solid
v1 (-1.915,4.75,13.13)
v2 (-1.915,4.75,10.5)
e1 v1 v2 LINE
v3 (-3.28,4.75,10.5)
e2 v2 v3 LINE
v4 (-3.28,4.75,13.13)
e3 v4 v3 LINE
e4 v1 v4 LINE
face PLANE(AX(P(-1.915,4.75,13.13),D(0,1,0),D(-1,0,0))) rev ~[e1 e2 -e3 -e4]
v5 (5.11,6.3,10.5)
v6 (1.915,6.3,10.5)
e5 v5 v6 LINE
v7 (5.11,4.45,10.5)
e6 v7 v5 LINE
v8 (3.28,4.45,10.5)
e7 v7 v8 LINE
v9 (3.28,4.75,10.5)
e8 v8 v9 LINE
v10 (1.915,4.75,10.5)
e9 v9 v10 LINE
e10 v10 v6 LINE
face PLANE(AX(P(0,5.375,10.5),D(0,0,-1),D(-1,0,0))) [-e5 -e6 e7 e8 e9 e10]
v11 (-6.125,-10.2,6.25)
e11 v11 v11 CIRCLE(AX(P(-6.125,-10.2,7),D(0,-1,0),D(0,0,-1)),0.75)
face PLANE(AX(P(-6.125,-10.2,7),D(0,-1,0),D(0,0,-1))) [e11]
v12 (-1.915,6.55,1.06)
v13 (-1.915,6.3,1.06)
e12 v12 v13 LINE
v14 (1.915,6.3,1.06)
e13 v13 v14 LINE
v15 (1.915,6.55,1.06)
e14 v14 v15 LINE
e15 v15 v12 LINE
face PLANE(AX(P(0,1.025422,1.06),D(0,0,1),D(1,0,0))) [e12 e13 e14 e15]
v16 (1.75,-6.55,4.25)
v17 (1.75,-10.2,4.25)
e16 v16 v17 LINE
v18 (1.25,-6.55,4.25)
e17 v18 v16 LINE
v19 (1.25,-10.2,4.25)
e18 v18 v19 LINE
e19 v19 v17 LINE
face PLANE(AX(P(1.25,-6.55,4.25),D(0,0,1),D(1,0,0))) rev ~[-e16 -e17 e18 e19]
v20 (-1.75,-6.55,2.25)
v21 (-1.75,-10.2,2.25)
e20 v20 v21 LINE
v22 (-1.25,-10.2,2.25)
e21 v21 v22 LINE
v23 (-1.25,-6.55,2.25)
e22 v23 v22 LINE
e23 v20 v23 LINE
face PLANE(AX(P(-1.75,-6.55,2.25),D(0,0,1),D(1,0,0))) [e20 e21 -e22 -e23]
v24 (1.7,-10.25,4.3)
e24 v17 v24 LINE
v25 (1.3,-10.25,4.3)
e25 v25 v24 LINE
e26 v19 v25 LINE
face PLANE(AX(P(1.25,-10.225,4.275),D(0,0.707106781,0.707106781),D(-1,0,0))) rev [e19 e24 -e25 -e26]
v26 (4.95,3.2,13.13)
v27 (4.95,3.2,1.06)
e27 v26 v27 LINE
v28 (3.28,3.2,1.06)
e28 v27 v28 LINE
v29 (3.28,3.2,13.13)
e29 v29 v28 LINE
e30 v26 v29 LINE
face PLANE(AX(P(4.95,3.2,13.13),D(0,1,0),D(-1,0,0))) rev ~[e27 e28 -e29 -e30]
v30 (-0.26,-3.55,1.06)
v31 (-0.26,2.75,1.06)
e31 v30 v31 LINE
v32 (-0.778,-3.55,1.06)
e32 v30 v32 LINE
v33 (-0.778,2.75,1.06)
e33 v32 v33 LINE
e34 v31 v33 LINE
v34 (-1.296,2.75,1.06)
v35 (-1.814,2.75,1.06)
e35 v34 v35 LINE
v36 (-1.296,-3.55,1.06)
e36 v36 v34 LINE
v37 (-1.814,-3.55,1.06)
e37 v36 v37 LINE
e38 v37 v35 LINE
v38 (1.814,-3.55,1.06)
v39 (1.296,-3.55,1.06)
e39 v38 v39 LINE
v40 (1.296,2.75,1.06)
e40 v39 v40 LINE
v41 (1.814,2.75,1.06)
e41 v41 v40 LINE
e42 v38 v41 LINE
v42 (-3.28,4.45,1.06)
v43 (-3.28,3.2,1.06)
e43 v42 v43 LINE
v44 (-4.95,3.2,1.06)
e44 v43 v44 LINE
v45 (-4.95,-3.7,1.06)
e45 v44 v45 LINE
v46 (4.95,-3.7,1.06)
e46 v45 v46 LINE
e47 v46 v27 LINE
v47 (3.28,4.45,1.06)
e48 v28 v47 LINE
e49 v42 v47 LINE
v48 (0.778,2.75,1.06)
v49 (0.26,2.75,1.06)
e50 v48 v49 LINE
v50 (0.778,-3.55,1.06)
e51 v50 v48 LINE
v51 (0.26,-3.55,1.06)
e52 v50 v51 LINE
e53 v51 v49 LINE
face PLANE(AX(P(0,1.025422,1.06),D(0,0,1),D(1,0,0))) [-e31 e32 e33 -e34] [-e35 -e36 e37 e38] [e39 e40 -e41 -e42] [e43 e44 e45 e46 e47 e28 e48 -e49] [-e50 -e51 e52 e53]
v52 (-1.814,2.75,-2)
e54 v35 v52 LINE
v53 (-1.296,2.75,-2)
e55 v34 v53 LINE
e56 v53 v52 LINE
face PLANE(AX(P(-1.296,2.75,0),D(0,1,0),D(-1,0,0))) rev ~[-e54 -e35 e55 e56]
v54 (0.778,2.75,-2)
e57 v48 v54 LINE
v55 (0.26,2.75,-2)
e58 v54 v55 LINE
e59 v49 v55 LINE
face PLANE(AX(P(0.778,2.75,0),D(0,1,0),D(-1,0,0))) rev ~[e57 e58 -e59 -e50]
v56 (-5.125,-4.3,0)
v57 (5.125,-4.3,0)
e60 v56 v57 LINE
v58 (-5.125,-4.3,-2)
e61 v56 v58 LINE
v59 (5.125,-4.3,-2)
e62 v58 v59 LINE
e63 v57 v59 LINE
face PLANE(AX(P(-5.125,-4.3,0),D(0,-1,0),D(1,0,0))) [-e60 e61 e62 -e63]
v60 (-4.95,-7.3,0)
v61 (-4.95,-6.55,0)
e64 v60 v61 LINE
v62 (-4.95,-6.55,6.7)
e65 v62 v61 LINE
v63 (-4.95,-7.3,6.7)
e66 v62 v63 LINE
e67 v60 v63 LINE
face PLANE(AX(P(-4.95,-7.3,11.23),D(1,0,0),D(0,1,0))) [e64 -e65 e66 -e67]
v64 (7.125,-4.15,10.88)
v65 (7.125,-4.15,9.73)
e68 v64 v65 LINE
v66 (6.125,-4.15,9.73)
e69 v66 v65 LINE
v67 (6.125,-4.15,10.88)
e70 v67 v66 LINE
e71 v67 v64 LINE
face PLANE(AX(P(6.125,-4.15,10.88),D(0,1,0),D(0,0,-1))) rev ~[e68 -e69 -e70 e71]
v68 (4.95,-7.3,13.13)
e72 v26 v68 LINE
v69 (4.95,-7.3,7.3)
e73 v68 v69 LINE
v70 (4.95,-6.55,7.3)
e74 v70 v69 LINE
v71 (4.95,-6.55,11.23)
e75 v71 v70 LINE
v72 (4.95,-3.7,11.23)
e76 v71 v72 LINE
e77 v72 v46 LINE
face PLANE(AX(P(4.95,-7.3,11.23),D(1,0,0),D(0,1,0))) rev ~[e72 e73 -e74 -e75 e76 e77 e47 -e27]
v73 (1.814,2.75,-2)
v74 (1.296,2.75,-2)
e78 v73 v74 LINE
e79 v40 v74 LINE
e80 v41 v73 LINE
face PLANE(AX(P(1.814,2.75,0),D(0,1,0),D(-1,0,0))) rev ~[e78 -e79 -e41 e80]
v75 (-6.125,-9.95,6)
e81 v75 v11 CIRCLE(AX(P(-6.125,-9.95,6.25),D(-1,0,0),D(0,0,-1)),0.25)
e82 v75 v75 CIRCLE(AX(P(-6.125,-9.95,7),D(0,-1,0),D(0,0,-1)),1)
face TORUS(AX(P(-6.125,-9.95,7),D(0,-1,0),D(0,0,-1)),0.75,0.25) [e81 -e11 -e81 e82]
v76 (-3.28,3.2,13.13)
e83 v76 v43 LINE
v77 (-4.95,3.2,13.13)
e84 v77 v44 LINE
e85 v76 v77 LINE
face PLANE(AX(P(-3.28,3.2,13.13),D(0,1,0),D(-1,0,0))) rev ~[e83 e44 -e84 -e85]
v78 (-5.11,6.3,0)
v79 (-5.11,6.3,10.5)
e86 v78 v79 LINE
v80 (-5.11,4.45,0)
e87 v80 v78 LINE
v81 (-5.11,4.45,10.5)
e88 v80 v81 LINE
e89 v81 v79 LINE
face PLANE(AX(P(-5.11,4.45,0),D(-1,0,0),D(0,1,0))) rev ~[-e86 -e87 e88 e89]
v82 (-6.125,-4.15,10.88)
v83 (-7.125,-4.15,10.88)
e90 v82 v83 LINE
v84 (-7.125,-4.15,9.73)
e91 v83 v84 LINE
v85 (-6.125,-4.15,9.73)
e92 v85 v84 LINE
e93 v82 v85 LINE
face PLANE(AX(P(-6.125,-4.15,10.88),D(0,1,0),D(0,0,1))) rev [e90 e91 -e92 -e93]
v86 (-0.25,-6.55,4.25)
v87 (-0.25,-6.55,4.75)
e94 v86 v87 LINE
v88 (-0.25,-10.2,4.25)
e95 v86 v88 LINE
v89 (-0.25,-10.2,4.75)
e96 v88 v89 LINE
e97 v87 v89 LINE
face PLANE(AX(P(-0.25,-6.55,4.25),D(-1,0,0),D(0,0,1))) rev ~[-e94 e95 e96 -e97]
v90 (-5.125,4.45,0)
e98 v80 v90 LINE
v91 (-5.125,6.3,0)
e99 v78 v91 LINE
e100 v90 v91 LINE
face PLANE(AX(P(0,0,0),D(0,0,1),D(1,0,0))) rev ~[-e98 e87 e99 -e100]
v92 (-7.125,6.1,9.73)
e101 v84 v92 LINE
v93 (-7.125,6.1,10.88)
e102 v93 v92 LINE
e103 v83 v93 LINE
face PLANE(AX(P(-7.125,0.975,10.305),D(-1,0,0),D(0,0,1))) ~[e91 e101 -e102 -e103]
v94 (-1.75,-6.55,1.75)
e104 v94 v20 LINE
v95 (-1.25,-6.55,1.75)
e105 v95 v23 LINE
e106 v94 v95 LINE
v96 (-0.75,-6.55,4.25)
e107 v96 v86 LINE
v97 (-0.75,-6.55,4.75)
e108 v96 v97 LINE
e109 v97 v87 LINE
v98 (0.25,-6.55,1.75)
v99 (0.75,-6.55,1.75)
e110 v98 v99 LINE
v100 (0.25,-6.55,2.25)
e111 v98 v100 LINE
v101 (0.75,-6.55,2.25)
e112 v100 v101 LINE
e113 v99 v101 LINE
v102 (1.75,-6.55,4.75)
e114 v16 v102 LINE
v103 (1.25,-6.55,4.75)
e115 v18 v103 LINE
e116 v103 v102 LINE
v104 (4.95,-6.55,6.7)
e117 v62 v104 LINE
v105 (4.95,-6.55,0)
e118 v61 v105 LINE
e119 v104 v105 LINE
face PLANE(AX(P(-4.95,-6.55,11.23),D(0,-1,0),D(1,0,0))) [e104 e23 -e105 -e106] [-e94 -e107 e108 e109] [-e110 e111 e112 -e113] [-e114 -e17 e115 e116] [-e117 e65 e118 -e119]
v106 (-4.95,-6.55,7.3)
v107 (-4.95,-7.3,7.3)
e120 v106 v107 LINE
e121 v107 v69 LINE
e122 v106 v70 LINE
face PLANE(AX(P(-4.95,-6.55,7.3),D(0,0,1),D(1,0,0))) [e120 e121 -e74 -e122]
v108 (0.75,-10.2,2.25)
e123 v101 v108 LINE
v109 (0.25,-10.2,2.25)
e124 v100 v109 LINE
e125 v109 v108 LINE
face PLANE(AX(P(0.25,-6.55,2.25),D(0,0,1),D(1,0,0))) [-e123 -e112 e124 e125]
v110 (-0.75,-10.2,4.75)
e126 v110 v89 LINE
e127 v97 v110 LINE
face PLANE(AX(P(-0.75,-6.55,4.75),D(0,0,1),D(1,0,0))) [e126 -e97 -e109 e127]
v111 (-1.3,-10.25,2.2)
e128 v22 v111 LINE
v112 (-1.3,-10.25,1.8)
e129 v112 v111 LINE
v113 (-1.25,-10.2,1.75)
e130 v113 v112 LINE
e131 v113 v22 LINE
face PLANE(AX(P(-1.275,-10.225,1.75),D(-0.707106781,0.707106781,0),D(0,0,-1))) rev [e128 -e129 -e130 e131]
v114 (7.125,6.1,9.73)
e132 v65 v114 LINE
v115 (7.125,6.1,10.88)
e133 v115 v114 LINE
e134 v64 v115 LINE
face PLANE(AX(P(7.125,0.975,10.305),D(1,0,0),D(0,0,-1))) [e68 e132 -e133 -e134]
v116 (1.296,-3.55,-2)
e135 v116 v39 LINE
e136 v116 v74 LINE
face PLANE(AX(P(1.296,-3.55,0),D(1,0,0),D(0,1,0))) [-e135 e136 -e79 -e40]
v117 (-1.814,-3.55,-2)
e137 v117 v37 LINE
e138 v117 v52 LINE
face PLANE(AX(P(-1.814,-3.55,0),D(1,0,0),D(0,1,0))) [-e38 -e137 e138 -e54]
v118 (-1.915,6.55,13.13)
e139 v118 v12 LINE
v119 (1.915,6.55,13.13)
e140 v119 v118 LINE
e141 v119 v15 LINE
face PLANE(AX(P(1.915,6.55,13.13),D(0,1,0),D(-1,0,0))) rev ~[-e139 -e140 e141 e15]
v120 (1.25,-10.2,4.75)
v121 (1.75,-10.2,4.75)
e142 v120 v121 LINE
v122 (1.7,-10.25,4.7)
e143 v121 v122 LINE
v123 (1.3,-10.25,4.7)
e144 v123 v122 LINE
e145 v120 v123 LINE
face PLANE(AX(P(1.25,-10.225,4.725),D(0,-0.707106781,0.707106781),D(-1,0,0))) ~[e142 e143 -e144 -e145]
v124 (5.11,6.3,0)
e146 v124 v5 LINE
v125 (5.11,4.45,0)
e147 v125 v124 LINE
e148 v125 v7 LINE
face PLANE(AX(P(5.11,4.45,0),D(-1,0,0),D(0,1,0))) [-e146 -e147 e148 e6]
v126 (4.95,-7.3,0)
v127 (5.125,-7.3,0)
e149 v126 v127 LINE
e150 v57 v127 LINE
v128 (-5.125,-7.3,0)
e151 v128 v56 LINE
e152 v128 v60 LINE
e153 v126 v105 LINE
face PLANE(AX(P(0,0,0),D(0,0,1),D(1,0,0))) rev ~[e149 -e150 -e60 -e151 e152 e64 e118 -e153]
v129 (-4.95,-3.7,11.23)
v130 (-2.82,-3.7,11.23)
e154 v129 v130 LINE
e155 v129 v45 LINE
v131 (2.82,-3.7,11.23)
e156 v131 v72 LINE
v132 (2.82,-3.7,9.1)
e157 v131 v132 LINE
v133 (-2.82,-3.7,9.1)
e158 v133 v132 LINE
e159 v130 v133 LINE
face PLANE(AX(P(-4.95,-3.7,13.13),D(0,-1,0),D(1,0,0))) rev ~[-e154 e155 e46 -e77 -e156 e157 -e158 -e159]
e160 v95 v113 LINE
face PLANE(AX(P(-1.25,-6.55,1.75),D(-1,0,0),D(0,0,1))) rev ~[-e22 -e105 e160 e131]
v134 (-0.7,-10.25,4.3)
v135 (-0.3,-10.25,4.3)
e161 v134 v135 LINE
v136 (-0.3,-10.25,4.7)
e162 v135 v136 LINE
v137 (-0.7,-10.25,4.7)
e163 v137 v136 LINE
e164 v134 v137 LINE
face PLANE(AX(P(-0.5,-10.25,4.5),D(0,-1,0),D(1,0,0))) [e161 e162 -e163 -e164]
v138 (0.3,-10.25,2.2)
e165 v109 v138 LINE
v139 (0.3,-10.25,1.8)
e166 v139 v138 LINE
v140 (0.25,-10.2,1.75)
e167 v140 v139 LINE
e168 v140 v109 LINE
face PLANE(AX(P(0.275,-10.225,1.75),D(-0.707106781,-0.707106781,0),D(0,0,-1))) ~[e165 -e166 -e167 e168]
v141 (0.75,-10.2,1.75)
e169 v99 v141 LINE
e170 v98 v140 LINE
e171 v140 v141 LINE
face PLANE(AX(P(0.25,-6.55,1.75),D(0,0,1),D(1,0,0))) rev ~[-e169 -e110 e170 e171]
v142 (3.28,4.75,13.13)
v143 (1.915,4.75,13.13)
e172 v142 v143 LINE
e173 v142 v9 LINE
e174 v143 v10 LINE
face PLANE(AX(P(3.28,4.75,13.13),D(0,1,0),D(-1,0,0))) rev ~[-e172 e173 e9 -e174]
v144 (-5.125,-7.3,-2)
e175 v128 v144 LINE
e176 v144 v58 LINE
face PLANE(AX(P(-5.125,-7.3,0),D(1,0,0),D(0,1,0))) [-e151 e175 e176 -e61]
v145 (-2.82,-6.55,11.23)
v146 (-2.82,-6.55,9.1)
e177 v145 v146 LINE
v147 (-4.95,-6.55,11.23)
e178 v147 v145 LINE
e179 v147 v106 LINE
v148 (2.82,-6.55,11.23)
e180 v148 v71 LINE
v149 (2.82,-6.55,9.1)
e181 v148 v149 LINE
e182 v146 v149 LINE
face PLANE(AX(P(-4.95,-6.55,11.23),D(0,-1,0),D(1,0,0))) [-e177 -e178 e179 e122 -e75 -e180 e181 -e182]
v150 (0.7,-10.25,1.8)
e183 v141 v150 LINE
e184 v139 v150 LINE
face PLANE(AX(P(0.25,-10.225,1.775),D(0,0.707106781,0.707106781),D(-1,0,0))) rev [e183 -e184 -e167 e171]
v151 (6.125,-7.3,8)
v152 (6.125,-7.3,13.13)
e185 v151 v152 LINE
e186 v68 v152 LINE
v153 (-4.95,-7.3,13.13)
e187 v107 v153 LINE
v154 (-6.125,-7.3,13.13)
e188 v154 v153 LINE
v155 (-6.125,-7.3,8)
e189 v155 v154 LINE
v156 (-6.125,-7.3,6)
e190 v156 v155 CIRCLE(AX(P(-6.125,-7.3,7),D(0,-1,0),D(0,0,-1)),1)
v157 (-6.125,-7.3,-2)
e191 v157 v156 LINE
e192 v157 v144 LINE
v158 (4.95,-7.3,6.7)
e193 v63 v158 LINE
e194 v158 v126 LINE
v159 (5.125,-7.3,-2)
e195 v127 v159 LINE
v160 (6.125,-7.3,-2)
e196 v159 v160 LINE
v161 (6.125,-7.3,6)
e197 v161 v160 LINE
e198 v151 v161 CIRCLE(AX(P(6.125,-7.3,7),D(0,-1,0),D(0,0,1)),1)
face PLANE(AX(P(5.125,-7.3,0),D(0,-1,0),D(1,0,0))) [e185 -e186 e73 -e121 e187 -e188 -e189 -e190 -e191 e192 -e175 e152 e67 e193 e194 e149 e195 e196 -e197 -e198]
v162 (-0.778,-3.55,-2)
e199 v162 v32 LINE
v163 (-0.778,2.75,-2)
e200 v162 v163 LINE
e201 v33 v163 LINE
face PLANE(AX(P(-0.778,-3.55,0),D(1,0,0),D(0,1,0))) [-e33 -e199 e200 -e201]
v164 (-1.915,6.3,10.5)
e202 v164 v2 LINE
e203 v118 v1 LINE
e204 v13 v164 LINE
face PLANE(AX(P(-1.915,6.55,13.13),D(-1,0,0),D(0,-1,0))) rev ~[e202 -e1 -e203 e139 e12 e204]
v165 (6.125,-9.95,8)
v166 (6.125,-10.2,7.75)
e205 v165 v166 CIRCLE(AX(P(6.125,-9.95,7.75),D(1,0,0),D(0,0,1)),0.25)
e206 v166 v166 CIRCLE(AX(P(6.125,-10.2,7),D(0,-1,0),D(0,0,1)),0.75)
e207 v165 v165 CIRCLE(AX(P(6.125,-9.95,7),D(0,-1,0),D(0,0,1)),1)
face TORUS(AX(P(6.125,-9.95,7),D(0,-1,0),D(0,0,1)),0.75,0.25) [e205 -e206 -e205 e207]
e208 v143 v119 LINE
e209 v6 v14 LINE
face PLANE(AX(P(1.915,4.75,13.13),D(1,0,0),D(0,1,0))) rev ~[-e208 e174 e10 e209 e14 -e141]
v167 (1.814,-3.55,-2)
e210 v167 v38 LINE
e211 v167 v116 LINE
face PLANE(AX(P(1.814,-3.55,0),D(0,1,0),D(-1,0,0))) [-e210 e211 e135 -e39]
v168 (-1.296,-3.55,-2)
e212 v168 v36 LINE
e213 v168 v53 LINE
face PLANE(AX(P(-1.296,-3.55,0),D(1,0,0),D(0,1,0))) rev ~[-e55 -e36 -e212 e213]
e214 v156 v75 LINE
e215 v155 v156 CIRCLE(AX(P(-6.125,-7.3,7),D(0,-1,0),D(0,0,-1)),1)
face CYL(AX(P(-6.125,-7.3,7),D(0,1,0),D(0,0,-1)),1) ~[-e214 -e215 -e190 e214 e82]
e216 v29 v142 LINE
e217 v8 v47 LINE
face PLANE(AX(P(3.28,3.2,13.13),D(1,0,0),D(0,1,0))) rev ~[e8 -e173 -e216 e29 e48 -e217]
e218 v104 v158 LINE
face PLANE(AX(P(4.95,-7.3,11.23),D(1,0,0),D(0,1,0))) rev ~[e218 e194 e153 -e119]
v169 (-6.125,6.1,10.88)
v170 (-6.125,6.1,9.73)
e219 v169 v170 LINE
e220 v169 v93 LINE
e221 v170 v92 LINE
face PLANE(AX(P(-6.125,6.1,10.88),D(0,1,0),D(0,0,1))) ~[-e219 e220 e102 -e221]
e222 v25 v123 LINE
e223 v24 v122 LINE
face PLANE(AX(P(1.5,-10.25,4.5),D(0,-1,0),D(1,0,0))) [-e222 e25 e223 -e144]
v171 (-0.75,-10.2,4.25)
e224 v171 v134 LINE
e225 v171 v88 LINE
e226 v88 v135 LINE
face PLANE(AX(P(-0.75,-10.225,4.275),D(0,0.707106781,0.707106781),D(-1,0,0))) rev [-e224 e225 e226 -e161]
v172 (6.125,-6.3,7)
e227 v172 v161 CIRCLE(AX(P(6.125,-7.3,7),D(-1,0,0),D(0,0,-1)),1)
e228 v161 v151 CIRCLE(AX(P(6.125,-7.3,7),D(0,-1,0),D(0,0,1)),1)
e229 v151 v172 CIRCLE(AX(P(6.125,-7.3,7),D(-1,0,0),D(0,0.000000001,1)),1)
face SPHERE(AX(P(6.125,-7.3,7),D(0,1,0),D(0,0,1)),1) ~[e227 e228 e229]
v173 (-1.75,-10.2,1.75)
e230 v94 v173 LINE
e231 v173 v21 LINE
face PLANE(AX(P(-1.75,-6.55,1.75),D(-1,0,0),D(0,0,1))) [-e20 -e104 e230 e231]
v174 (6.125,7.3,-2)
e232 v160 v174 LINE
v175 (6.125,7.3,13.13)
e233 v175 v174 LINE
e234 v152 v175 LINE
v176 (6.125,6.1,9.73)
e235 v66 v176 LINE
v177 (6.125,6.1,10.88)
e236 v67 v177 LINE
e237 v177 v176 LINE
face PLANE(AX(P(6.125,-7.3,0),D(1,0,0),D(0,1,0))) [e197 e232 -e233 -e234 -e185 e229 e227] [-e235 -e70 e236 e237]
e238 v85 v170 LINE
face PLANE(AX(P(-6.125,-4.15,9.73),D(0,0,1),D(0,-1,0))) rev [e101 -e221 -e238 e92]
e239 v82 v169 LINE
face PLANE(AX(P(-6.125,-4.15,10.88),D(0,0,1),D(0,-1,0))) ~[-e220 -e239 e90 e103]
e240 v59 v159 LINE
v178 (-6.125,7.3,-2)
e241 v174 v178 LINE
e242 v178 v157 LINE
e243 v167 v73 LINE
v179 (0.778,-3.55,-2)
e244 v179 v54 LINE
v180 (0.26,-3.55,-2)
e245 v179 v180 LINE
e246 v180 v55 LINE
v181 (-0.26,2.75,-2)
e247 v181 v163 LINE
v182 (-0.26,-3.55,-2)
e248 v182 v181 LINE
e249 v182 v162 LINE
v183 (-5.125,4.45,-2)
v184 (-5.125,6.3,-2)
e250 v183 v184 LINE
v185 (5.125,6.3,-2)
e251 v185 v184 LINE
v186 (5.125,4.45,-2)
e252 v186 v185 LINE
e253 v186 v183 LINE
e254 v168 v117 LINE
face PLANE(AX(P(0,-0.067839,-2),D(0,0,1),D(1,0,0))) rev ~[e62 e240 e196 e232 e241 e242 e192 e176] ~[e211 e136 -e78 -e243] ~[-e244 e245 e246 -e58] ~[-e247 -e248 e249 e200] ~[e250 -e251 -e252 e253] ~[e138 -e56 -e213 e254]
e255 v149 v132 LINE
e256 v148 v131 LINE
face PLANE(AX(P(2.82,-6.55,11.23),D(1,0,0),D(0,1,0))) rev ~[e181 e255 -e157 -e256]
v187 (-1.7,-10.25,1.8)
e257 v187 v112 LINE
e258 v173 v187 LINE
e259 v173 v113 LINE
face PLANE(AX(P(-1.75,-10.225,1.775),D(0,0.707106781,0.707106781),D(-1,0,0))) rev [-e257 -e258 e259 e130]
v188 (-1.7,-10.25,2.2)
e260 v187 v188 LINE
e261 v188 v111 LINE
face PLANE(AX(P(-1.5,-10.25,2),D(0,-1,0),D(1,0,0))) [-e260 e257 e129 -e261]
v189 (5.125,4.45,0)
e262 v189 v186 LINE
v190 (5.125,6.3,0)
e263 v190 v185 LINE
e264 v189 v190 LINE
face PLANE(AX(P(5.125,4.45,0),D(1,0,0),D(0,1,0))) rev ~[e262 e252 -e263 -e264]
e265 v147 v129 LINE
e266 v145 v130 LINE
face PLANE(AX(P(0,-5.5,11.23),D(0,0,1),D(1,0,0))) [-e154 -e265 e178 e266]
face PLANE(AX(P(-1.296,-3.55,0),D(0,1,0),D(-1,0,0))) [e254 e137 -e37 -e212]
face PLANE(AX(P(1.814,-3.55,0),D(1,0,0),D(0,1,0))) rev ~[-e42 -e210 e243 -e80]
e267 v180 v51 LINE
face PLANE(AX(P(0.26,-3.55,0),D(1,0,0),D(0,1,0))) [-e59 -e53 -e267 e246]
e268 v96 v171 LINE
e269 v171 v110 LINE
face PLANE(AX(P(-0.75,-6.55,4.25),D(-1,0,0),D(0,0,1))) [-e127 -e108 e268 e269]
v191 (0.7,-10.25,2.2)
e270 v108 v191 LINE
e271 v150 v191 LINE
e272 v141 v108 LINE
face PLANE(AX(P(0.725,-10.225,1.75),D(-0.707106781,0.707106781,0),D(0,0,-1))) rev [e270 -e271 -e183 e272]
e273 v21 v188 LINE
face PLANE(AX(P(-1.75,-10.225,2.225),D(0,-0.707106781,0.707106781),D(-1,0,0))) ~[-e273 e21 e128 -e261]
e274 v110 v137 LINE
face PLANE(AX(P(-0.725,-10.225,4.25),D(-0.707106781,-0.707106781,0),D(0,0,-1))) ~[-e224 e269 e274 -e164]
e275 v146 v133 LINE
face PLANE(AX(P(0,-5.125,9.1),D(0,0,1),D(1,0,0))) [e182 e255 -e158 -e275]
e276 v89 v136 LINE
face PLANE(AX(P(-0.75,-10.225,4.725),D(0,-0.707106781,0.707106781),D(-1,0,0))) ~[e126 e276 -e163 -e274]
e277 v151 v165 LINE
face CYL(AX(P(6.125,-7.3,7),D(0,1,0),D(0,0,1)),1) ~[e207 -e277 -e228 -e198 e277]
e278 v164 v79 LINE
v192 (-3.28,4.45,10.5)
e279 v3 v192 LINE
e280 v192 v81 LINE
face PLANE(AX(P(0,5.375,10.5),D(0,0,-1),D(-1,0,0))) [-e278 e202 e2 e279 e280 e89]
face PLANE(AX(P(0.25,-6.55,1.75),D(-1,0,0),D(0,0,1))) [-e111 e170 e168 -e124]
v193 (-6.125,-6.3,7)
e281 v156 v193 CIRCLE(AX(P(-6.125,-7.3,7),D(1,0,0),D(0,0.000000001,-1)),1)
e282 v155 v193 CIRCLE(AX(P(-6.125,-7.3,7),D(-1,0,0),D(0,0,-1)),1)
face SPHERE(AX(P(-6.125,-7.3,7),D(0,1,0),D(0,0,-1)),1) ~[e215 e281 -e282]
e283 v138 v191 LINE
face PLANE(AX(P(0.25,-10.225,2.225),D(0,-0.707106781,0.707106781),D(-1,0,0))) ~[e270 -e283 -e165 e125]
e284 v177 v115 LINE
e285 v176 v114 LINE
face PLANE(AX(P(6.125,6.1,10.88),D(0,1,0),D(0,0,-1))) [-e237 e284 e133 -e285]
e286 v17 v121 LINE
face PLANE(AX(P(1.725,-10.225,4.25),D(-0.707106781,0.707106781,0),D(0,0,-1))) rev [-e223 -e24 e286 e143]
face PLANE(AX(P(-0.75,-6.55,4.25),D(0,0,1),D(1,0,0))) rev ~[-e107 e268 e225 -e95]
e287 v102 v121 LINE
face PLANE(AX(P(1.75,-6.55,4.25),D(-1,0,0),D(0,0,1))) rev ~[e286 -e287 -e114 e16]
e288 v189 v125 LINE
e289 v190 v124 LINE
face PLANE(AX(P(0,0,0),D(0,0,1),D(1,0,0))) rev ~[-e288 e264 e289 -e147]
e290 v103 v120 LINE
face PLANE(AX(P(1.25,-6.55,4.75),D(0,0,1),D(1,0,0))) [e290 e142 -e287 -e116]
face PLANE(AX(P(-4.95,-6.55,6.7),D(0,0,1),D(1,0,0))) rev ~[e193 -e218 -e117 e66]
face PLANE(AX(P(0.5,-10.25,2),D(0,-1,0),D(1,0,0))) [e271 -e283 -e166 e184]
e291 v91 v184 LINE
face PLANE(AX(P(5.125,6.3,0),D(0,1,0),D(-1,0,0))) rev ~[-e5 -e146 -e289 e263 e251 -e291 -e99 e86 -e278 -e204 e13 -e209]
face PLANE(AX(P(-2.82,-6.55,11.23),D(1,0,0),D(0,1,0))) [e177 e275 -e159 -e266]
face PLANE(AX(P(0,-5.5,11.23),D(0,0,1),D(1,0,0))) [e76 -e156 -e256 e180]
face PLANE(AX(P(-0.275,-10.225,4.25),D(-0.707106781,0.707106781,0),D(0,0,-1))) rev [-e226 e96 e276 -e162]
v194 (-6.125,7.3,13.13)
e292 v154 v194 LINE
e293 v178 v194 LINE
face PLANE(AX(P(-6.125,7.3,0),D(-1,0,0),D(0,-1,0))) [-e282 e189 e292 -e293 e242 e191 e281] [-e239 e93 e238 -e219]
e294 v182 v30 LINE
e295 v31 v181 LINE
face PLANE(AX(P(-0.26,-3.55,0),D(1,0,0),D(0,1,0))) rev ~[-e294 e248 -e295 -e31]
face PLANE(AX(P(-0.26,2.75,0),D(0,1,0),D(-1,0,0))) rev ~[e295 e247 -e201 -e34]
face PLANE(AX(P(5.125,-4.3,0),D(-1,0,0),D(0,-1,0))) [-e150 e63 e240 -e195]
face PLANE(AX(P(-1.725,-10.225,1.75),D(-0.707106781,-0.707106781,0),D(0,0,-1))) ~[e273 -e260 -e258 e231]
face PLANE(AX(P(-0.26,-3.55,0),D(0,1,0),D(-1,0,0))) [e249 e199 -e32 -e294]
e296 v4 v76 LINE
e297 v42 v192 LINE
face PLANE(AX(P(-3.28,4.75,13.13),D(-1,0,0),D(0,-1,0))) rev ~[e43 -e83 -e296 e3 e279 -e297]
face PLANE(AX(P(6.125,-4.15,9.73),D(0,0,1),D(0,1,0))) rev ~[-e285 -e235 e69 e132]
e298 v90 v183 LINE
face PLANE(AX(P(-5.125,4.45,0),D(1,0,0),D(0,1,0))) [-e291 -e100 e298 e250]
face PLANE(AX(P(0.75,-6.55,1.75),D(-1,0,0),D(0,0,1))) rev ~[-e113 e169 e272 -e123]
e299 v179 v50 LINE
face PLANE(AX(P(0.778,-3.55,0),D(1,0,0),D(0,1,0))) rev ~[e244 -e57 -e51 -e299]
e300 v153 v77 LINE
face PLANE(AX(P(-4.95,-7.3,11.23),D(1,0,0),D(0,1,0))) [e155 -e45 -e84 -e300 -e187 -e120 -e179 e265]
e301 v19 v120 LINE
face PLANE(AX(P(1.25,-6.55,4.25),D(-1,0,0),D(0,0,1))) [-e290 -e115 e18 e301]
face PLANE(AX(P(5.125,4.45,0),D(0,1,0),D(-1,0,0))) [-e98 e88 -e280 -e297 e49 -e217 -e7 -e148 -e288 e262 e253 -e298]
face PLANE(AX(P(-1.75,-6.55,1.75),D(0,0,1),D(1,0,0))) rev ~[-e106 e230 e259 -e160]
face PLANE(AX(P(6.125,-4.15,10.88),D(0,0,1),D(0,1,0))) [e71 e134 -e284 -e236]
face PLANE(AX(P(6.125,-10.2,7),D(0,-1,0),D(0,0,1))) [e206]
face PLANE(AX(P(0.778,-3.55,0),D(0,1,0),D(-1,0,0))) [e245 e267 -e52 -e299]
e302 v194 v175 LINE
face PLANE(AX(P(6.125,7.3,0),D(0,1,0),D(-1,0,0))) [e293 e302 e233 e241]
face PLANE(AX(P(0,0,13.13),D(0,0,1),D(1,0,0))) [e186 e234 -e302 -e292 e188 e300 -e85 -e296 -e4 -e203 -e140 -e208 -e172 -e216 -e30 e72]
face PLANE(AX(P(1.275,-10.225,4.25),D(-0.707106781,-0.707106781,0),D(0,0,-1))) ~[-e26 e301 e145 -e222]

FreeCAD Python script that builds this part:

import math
import FreeCAD as App
import Part
import Sketcher

V = App.Vector


def edges_at(feature, points):
    """Names of the edges that pass closest to the given points."""
    edges = feature.Shape.Edges
    near = lambda p: min(range(len(edges)), key=lambda i: edges[i].distToShape(Part.Vertex(*p))[0])
    return sorted({f"Edge{near(p) + 1}" for p in points})


def add_polygon(sketch, points):
    """Adds a closed chain of lines whose ends are joined by coincident constraints."""
    first, n = sketch.GeometryCount, len(points)
    for a, b in zip(points, points[1:] + points[:1]):
        sketch.addGeometry(Part.LineSegment(App.Vector(*a, 0), App.Vector(*b, 0)), False)
    for i in range(n):
        sketch.addConstraint(Sketcher.Constraint("Coincident", first + i, 2, first + (i + 1) % n, 1))

doc = App.newDocument("Part")
params = doc.addObject("Spreadsheet::Sheet", "Params")
for row, (alias, value) in enumerate([
    ("sketch1_height", "14.6 mm"),
    ("sketch1_width", "12.25 mm"),
    ("pad1_length", "13.13 mm"),
    ("sketch2_width", "9.9 mm"),
    ("sketch2_height", "1.8 mm"),
    ("sketch2_height2", "6.9 mm"),
    ("sketch2_width2", "3.83 mm"),
    ("sketch2_width3", "1.67 mm"),
    ("pocket1_length", "12.07 mm"),
    ("sketch3_width", "10.22 mm"),
    ("sketch3_height", "1.85 mm"),
    ("pocket2_length", "10.5 mm"),
    ("sketch4_height", "6.3 mm"),
    ("sketch5_height", "6.3 mm"),
    ("sketch6_height", "6.3 mm"),
    ("sketch7_height", "6.3 mm"),
    ("sketch8_width", "9.9 mm"),
    ("sketch8_height", "3.6 mm"),
    ("pocket7_length", "1.9 mm"),
    ("sketch9_width", "5.64 mm"),
    ("sketch9_height", "2.85 mm"),
    ("pocket8_length", "2.13 mm"),
    ("sketch10_width", "9.9 mm"),
    ("sketch10_height", "0.75 mm"),
    ("sketch11_diameter", "2 mm"),
    ("pad2_length", "2.9 mm"),
    ("sketch12_radius", "1 mm"),
    ("revolution_angle", "360 deg"),
    ("sketch13_radius", "1 mm"),
    ("revolution2_angle", "360 deg"),
    ("fillet_radius", "0.25 mm"),
    ("sketch14_width", "0.5 mm"),
    ("pad3_length", "3.7 mm"),
    ("chamfer_size", "0.05 mm"),
    ("sketch15_width", "9.9 mm"),
    ("sketch15_height", "0.6 mm"),
    ("pad4_length", "0.75 mm"),
    ("sketch16_width", "1 mm"),
    ("sketch16_height", "3 mm"),
    ("sketch16_height2", "14.6 mm"),
    ("sketch16_height3", "6.3 mm"),
    ("sketch16_width2", "12.25 mm"),
    ("pad5_length", "2 mm"),
    ("sketch17_width", "10.25 mm"),
    ("sketch17_height", "1.15 mm"),
    ("pad6_length", "1 mm"),
], start=1):
    params.set(f"A{row}", alias)
    params.set(f"B{row}", "=" + value)
    params.setAlias(f"B{row}", alias)

body = doc.addObject("PartDesign::Body", "Body")

# Sketch on XY plane
sketch1 = body.newObject("Sketcher::SketchObject", "Sketch")
sketch1.AttachmentSupport = (doc.getObject("XY_Plane"), [""])
sketch1.MapMode = "FlatFace"
add_polygon(sketch1, [(-6, 7), (-6, -7), (6, -7), (6, 7)])  # lines 0-3
sketch1.addConstraint(Sketcher.Constraint("Vertical", 0))
sketch1.addConstraint(Sketcher.Constraint("Horizontal", 1))
sketch1.addConstraint(Sketcher.Constraint("Vertical", 2))
sketch1.addConstraint(Sketcher.Constraint("Horizontal", 3))
sketch1.addConstraint(Sketcher.Constraint("Symmetric", 0, 2, 2, 2, -1, 1))
sketch1.addConstraint(Sketcher.Constraint("DistanceY", 0, 2, 0, 1, 14.6))
sketch1.addConstraint(Sketcher.Constraint("DistanceX", 1, 1, 1, 2, 12.25))
sketch1.setExpression("Constraints[9]", "Params.sketch1_height")
sketch1.setExpression("Constraints[10]", "Params.sketch1_width")
pad1 = body.newObject("PartDesign::Pad", "Pad")
pad1.Profile = sketch1
pad1.setExpression("Length", "Params.pad1_length")

# Sketch on XY plane
sketch2 = body.newObject("Sketcher::SketchObject", "Sketch001")
sketch2.AttachmentSupport = (doc.getObject("XY_Plane"), [""])
sketch2.MapMode = "FlatFace"
sketch2.AttachmentOffset = App.Placement(V(0, 0, 13.13), App.Rotation())
add_polygon(sketch2, [(3.3, 3.2), (3.3, 4.8), (1.9, 4.8), (1.9, 6.5), (-1.9, 6.5), (-1.9, 4.8), (-3.3, 4.8), (-3.3, 3.2), (-5, 3.2), (-5, -3.7), (5, -3.7), (5, 3.2)])  # lines 0-11
sketch2.addConstraint(Sketcher.Constraint("Vertical", 0))
sketch2.addConstraint(Sketcher.Constraint("Horizontal", 1))
sketch2.addConstraint(Sketcher.Constraint("Vertical", 2))
sketch2.addConstraint(Sketcher.Constraint("Horizontal", 3))
sketch2.addConstraint(Sketcher.Constraint("Vertical", 4))
sketch2.addConstraint(Sketcher.Constraint("Horizontal", 5))
sketch2.addConstraint(Sketcher.Constraint("Vertical", 6))
sketch2.addConstraint(Sketcher.Constraint("Horizontal", 7))
sketch2.addConstraint(Sketcher.Constraint("Vertical", 8))
sketch2.addConstraint(Sketcher.Constraint("Horizontal", 9))
sketch2.addConstraint(Sketcher.Constraint("Vertical", 10))
sketch2.addConstraint(Sketcher.Constraint("Horizontal", 11))
sketch2.addConstraint(Sketcher.Constraint("Symmetric", 1, 2, 4, 2, -2))
sketch2.addConstraint(Sketcher.Constraint("Symmetric", 7, 2, 10, 2, -2))
sketch2.addConstraint(Sketcher.Constraint("Equal", 1, 5))
sketch2.addConstraint(Sketcher.Constraint("DistanceX", 9, 1, 9, 2, 9.9))
sketch2.addConstraint(Sketcher.Constraint("DistanceY", 2, 1, 2, 2, 1.8))
sketch2.addConstraint(Sketcher.Constraint("DistanceY", 8, 2, 8, 1, 6.9))
sketch2.addConstraint(Sketcher.Constraint("DistanceX", 3, 2, 3, 1, 3.83))
sketch2.addConstraint(Sketcher.Constraint("DistanceX", 7, 2, 7, 1, 1.67))
sketch2.addConstraint(Sketcher.Constraint("DistanceY", 0, 1, 0, 2, 1.55))
sketch2.addConstraint(Sketcher.Constraint("DistanceY", -1, 1, 6, 2, 3.2))
sketch2.setExpression("Constraints[27]", "Params.sketch2_width")
sketch2.setExpression("Constraints[28]", "Params.sketch2_height")
sketch2.setExpression("Constraints[29]", "Params.sketch2_height2")
sketch2.setExpression("Constraints[30]", "Params.sketch2_width2")
sketch2.setExpression("Constraints[31]", "Params.sketch2_width3")
pocket1 = body.newObject("PartDesign::Pocket", "Pocket")
pocket1.Profile = sketch2
pocket1.setExpression("Length", "Params.pocket1_length")

# Sketch on XY plane
sketch3 = body.newObject("Sketcher::SketchObject", "Sketch002")
sketch3.AttachmentSupport = (doc.getObject("XY_Plane"), [""])
sketch3.MapMode = "FlatFace"
add_polygon(sketch3, [(5.1, 6.3), (5.1, 4.5), (-5.1, 4.5), (-5.1, 6.3)])  # lines 0-3
sketch3.addConstraint(Sketcher.Constraint("Vertical", 0))
sketch3.addConstraint(Sketcher.Constraint("Horizontal", 1))
sketch3.addConstraint(Sketcher.Constraint("Vertical", 2))
sketch3.addConstraint(Sketcher.Constraint("Horizontal", 3))
sketch3.addConstraint(Sketcher.Constraint("DistanceX", 1, 2, 1, 1, 10.22))
sketch3.addConstraint(Sketcher.Constraint("DistanceY", 0, 2, 0, 1, 1.85))
sketch3.addConstraint(Sketcher.Constraint("DistanceY", -1, 1, 2, 2, 6.3))
sketch3.addConstraint(Sketcher.Constraint("DistanceX", -1, 1, 0, 2, 5.11))
sketch3.setExpression("Constraints[8]", "Params.sketch3_width")
sketch3.setExpression("Constraints[9]", "Params.sketch3_height")
pocket2 = body.newObject("PartDesign::Pocket", "Pocket001")
pocket2.Profile = sketch3
pocket2.setExpression("Length", "Params.pocket2_length")
pocket2.Reversed = True

# Sketch on XY plane
sketch4 = body.newObject("Sketcher::SketchObject", "Sketch003")
sketch4.AttachmentSupport = (doc.getObject("XY_Plane"), [""])
sketch4.MapMode = "FlatFace"
add_polygon(sketch4, [(1.8, 2.8), (1.8, -3.5), (1.3, -3.5), (1.3, 2.8)])  # lines 0-3
sketch4.addConstraint(Sketcher.Constraint("Vertical", 0))
sketch4.addConstraint(Sketcher.Constraint("Horizontal", 1))
sketch4.addConstraint(Sketcher.Constraint("Vertical", 2))
sketch4.addConstraint(Sketcher.Constraint("Horizontal", 3))
sketch4.addConstraint(Sketcher.Constraint("DistanceY", 0, 2, 0, 1, 6.3))
sketch4.addConstraint(Sketcher.Constraint("DistanceX", 1, 2, 1, 1, 0.518))
sketch4.addConstraint(Sketcher.Constraint("DistanceY", 0, 2, -1, 1, 3.55))
sketch4.addConstraint(Sketcher.Constraint("DistanceX", -1, 1, 0, 2, 1.814))
sketch4.setExpression("Constraints[8]", "Params.sketch4_height")
pocket3 = body.newObject("PartDesign::Pocket", "Pocket002")
pocket3.Profile = sketch4
pocket3.Type = "UpToFirst"
pocket3.Reversed = True

# Sketch on XY plane
sketch5 = body.newObject("Sketcher::SketchObject", "Sketch004")
sketch5.AttachmentSupport = (doc.getObject("XY_Plane"), [""])
sketch5.MapMode = "FlatFace"
add_polygon(sketch5, [(0.8, 2.8), (0.8, -3.5), (0.3, -3.5), (0.3, 2.8)])  # lines 0-3
sketch5.addConstraint(Sketcher.Constraint("Vertical", 0))
sketch5.addConstraint(Sketcher.Constraint("Horizontal", 1))
sketch5.addConstraint(Sketcher.Constraint("Vertical", 2))
sketch5.addConstraint(Sketcher.Constraint("Horizontal", 3))
sketch5.addConstraint(Sketcher.Constraint("DistanceY", 0, 2, 0, 1, 6.3))
sketch5.addConstraint(Sketcher.Constraint("DistanceX", 1, 2, 1, 1, 0.518))
sketch5.addConstraint(Sketcher.Constraint("DistanceY", 0, 2, -1, 1, 3.55))
sketch5.addConstraint(Sketcher.Constraint("DistanceX", -1, 1, 1, 2, 0.26))
sketch5.setExpression("Constraints[8]", "Params.sketch5_height")
pocket4 = body.newObject("PartDesign::Pocket", "Pocket003")
pocket4.Profile = sketch5
pocket4.Type = "UpToFirst"
pocket4.Reversed = True

# Sketch on XY plane
sketch6 = body.newObject("Sketcher::SketchObject", "Sketch005")
sketch6.AttachmentSupport = (doc.getObject("XY_Plane"), [""])
sketch6.MapMode = "FlatFace"
add_polygon(sketch6, [(-0.3, 2.8), (-0.3, -3.5), (-0.8, -3.5), (-0.8, 2.8)])  # lines 0-3
sketch6.addConstraint(Sketcher.Constraint("Vertical", 0))
sketch6.addConstraint(Sketcher.Constraint("Horizontal", 1))
sketch6.addConstraint(Sketcher.Constraint("Vertical", 2))
sketch6.addConstraint(Sketcher.Constraint("Horizontal", 3))
sketch6.addConstraint(Sketcher.Constraint("DistanceY", 0, 2, 0, 1, 6.3))
sketch6.addConstraint(Sketcher.Constraint("DistanceX", 1, 2, 1, 1, 0.518))
sketch6.addConstraint(Sketcher.Constraint("DistanceX", 0, 2, -1, 1, 0.26))
sketch6.addConstraint(Sketcher.Constraint("DistanceY", 0, 2, -1, 1, 3.55))
sketch6.setExpression("Constraints[8]", "Params.sketch6_height")
pocket5 = body.newObject("PartDesign::Pocket", "Pocket004")
pocket5.Profile = sketch6
pocket5.Type = "UpToFirst"
pocket5.Reversed = True

# Sketch on XY plane
sketch7 = body.newObject("Sketcher::SketchObject", "Sketch006")
sketch7.AttachmentSupport = (doc.getObject("XY_Plane"), [""])
sketch7.MapMode = "FlatFace"
add_polygon(sketch7, [(-1.3, 2.8), (-1.3, -3.5), (-1.8, -3.5), (-1.8, 2.8)])  # lines 0-3
sketch7.addConstraint(Sketcher.Constraint("Vertical", 0))
sketch7.addConstraint(Sketcher.Constraint("Horizontal", 1))
sketch7.addConstraint(Sketcher.Constraint("Vertical", 2))
sketch7.addConstraint(Sketcher.Constraint("Horizontal", 3))
sketch7.addConstraint(Sketcher.Constraint("DistanceY", 0, 2, 0, 1, 6.3))
sketch7.addConstraint(Sketcher.Constraint("DistanceX", 1, 2, 1, 1, 0.518))
sketch7.addConstraint(Sketcher.Constraint("DistanceY", 0, 2, -1, 1, 3.55))
sketch7.addConstraint(Sketcher.Constraint("DistanceX", 0, 2, -1, 1, 1.296))
sketch7.setExpression("Constraints[8]", "Params.sketch7_height")
pocket6 = body.newObject("PartDesign::Pocket", "Pocket005")
pocket6.Profile = sketch7
pocket6.Type = "UpToFirst"
pocket6.Reversed = True

# Sketch on XY plane
sketch8 = body.newObject("Sketcher::SketchObject", "Sketch007")
sketch8.AttachmentSupport = (doc.getObject("XY_Plane"), [""])
sketch8.MapMode = "FlatFace"
sketch8.AttachmentOffset = App.Placement(V(0, 0, 13.13), App.Rotation())
add_polygon(sketch8, [(-5, -3.7), (-5, -7.3), (5, -7.3), (5, -3.7)])  # lines 0-3
sketch8.addConstraint(Sketcher.Constraint("Vertical", 0))
sketch8.addConstraint(Sketcher.Constraint("Horizontal", 1))
sketch8.addConstraint(Sketcher.Constraint("Vertical", 2))
sketch8.addConstraint(Sketcher.Constraint("Horizontal", 3))
sketch8.addConstraint(Sketcher.Constraint("DistanceX", 1, 1, 1, 2, 9.9))
sketch8.addConstraint(Sketcher.Constraint("DistanceY", 0, 2, 0, 1, 3.6))
sketch8.addConstraint(Sketcher.Constraint("DistanceY", 0, 2, -1, 1, 7.3))
sketch8.addConstraint(Sketcher.Constraint("DistanceX", 0, 2, -1, 1, 4.95))
sketch8.setExpression("Constraints[8]", "Params.sketch8_width")
sketch8.setExpression("Constraints[9]", "Params.sketch8_height")
pocket7 = body.newObject("PartDesign::Pocket", "Pocket006")
pocket7.Profile = sketch8
pocket7.setExpression("Length", "Params.pocket7_length")

# Sketch on XY plane
sketch9 = body.newObject("Sketcher::SketchObject", "Sketch008")
sketch9.AttachmentSupport = (doc.getObject("XY_Plane"), [""])
sketch9.MapMode = "FlatFace"
sketch9.AttachmentOffset = App.Placement(V(0, 0, 11.23), App.Rotation())
add_polygon(sketch9, [(-2.8, -3.7), (-2.8, -6.5), (2.8, -6.5), (2.8, -3.7)])  # lines 0-3
sketch9.addConstraint(Sketcher.Constraint("Vertical", 0))
sketch9.addConstraint(Sketcher.Constraint("Horizontal", 1))
sketch9.addConstraint(Sketcher.Constraint("Vertical", 2))
sketch9.addConstraint(Sketcher.Constraint("Horizontal", 3))
sketch9.addConstraint(Sketcher.Constraint("DistanceX", 1, 1, 1, 2, 5.64))
sketch9.addConstraint(Sketcher.Constraint("DistanceY", 0, 2, 0, 1, 2.85))
sketch9.addConstraint(Sketcher.Constraint("DistanceY", 2, 2, -1, 1, 3.7))
sketch9.addConstraint(Sketcher.Constraint("DistanceX", 0, 2, -1, 1, 2.82))
sketch9.setExpression("Constraints[8]", "Params.sketch9_width")
sketch9.setExpression("Constraints[9]", "Params.sketch9_height")
pocket8 = body.newObject("PartDesign::Pocket", "Pocket007")
pocket8.Profile = sketch9
pocket8.setExpression("Length", "Params.pocket8_length")

# Sketch on XY plane
sketch10 = body.newObject("Sketcher::SketchObject", "Sketch009")
sketch10.AttachmentSupport = (doc.getObject("XY_Plane"), [""])
sketch10.MapMode = "FlatFace"
sketch10.AttachmentOffset = App.Placement(V(0, 0, 11.23), App.Rotation())
add_polygon(sketch10, [(-5, -6.5), (-5, -7.3), (5, -7.3), (5, -6.5)])  # lines 0-3
sketch10.addConstraint(Sketcher.Constraint("Vertical", 0))
sketch10.addConstraint(Sketcher.Constraint("Horizontal", 1))
sketch10.addConstraint(Sketcher.Constraint("Vertical", 2))
sketch10.addConstraint(Sketcher.Constraint("Horizontal", 3))
sketch10.addConstraint(Sketcher.Constraint("DistanceX", 1, 1, 1, 2, 9.9))
sketch10.addConstraint(Sketcher.Constraint("DistanceY", 0, 2, 0, 1, 0.75))
sketch10.addConstraint(Sketcher.Constraint("DistanceY", 0, 2, -1, 1, 7.3))
sketch10.addConstraint(Sketcher.Constraint("DistanceX", 0, 2, -1, 1, 4.95))
sketch10.setExpression("Constraints[8]", "Params.sketch10_width")
sketch10.setExpression("Constraints[9]", "Params.sketch10_height")
pocket9 = body.newObject("PartDesign::Pocket", "Pocket008")
pocket9.Profile = sketch10
pocket9.Type = "ThroughAll"

# Sketch on XZ plane
sketch11 = body.newObject("Sketcher::SketchObject", "Sketch010")
sketch11.AttachmentSupport = (doc.getObject("XZ_Plane"), [""])
sketch11.MapMode = "FlatFace"
sketch11.AttachmentOffset = App.Placement(V(0, 0, 7.3), App.Rotation())
sketch11.addGeometry(Part.Circle(V(-6.1, 7, 0), V(0, 0, 1), 1), False)
sketch11.addGeometry(Part.Circle(V(6.1, 7, 0), V(0, 0, 1), 1), False)
sketch11.addConstraint(Sketcher.Constraint("Equal", 0, 1))
sketch11.addConstraint(Sketcher.Constraint("Symmetric", 0, 3, 1, 3, -2))
sketch11.addConstraint(Sketcher.Constraint("Diameter", 0, 2.0))
sketch11.addConstraint(Sketcher.Constraint("DistanceY", -1, 1, 0, 3, 7.0))
sketch11.addConstraint(Sketcher.Constraint("DistanceX", 0, 3, 1, 3, 12.25))
sketch11.setExpression("Constraints[2]", "Params.sketch11_diameter")
pad2 = body.newObject("PartDesign::Pad", "Pad001")
pad2.Profile = sketch11
pad2.setExpression("Length", "Params.pad2_length")

# Sketch on YZ plane
sketch12 = body.newObject("Sketcher::SketchObject", "Sketch011")
sketch12.AttachmentSupport = (doc.getObject("YZ_Plane"), [""])
sketch12.MapMode = "FlatFace"
sketch12.AttachmentOffset = App.Placement(V(0, 0, 6.125), App.Rotation())
sketch12.addGeometry(Part.LineSegment(V(-7.3, 7, 0), V(-6.3, 7, 0)), False)
sketch12.addGeometry(Part.ArcOfCircle(Part.Circle(V(-7.3, 7, 0), V(0, 0, 1), 1), math.radians(0), math.radians(90)), False)
sketch12.addGeometry(Part.LineSegment(V(-7.3, 8, 0), V(-7.3, 7, 0)), False)
sketch12.addGeometry(Part.LineSegment(V(-6.3, 7, 0), V(-7.3, 7, 0)), True)  # axis
sketch12.addConstraint(Sketcher.Constraint("Coincident", 0, 2, 1, 1))
sketch12.addConstraint(Sketcher.Constraint("Coincident", 1, 2, 2, 1))
sketch12.addConstraint(Sketcher.Constraint("Coincident", 2, 2, 0, 1))
sketch12.addConstraint(Sketcher.Constraint("Horizontal", 0))
sketch12.addConstraint(Sketcher.Constraint("Vertical", 2))
sketch12.addConstraint(Sketcher.Constraint("Horizontal", 3))
sketch12.addConstraint(Sketcher.Constraint("Coincident", 2, 2, 1, 3))
sketch12.addConstraint(Sketcher.Constraint("Coincident", 3, 1, 0, 2))
sketch12.addConstraint(Sketcher.Constraint("Vertical", 1, 2, 3, 2))
sketch12.addConstraint(Sketcher.Constraint("Radius", 1, 1.0))
sketch12.addConstraint(Sketcher.Constraint("DistanceY", -1, 1, 1, 3, 7.0))
sketch12.addConstraint(Sketcher.Constraint("DistanceX", 1, 3, -1, 1, 7.3))
sketch12.setExpression("Constraints[9]", "Params.sketch12_radius")
revolution = body.newObject("PartDesign::Revolution", "Revolution")
revolution.Profile = sketch12
revolution.ReferenceAxis = (sketch12, ["Axis0"])
revolution.setExpression("Angle", "Params.revolution_angle")

# Sketch on YZ plane
sketch13 = body.newObject("Sketcher::SketchObject", "Sketch012")
sketch13.AttachmentSupport = (doc.getObject("YZ_Plane"), [""])
sketch13.MapMode = "FlatFace"
sketch13.AttachmentOffset = App.Placement(V(0, 0, -6.125), App.Rotation())
sketch13.addGeometry(Part.LineSegment(V(-7.3, 7, 0), V(-6.3, 7, 0)), False)
sketch13.addGeometry(Part.ArcOfCircle(Part.Circle(V(-7.3, 7, 0), V(0, 0, 1), 1), math.radians(-90), math.radians(0)), False)
sketch13.addGeometry(Part.LineSegment(V(-7.3, 6, 0), V(-7.3, 7, 0)), False)
sketch13.addGeometry(Part.LineSegment(V(-6.3, 7, 0), V(-7.3, 7, 0)), True)  # axis
sketch13.addConstraint(Sketcher.Constraint("Coincident", 0, 2, 1, 2))
sketch13.addConstraint(Sketcher.Constraint("Coincident", 1, 1, 2, 1))
sketch13.addConstraint(Sketcher.Constraint("Coincident", 2, 2, 0, 1))
sketch13.addConstraint(Sketcher.Constraint("Horizontal", 0))
sketch13.addConstraint(Sketcher.Constraint("Vertical", 2))
sketch13.addConstraint(Sketcher.Constraint("Horizontal", 3))
sketch13.addConstraint(Sketcher.Constraint("Coincident", 2, 2, 1, 3))
sketch13.addConstraint(Sketcher.Constraint("Coincident", 3, 1, 0, 2))
sketch13.addConstraint(Sketcher.Constraint("Vertical", 1, 1, 3, 2))
sketch13.addConstraint(Sketcher.Constraint("Radius", 1, 1.0))
sketch13.addConstraint(Sketcher.Constraint("DistanceY", -1, 1, 1, 3, 7.0))
sketch13.addConstraint(Sketcher.Constraint("DistanceX", 1, 3, -1, 1, 7.3))
sketch13.setExpression("Constraints[9]", "Params.sketch13_radius")
revolution2 = body.newObject("PartDesign::Revolution", "Revolution001")
revolution2.Profile = sketch13
revolution2.ReferenceAxis = (sketch13, ["Axis0"])
revolution2.setExpression("Angle", "Params.revolution2_angle")
doc.recompute()

fillet = body.newObject("PartDesign::Fillet", "Fillet")
fillet.Base = (revolution2, edges_at(revolution2, [(-6.125, -10.2, 8), (6.125, -10.2, 6)]))
fillet.setExpression("Radius", "Params.fillet_radius")

# Sketch on XZ plane
sketch14 = body.newObject("Sketcher::SketchObject", "Sketch013")
sketch14.AttachmentSupport = (doc.getObject("XZ_Plane"), [""])
sketch14.MapMode = "FlatFace"
sketch14.AttachmentOffset = App.Placement(V(0, 0, 6.55), App.Rotation())
add_polygon(sketch14, [(-0.8, 4.8), (-0.8, 4.2), (-0.2, 4.2), (-0.2, 4.8)])  # lines 0-3
add_polygon(sketch14, [(-1.8, 2.2), (-1.8, 1.8), (-1.2, 1.8), (-1.2, 2.2)])  # lines 4-7
add_polygon(sketch14, [(0.2, 2.2), (0.2, 1.8), (0.8, 1.8), (0.8, 2.2)])  # lines 8-11
add_polygon(sketch14, [(1.2, 4.8), (1.2, 4.2), (1.8, 4.2), (1.8, 4.8)])  # lines 12-15
sketch14.addConstraint(Sketcher.Constraint("Vertical", 0))
sketch14.addConstraint(Sketcher.Constraint("Horizontal", 1))
sketch14.addConstraint(Sketcher.Constraint("Vertical", 2))
sketch14.addConstraint(Sketcher.Constraint("Horizontal", 3))
sketch14.addConstraint(Sketcher.Constraint("Vertical", 4))
sketch14.addConstraint(Sketcher.Constraint("Horizontal", 5))
sketch14.addConstraint(Sketcher.Constraint("Vertical", 6))
sketch14.addConstraint(Sketcher.Constraint("Horizontal", 7))
sketch14.addConstraint(Sketcher.Constraint("Vertical", 8))
sketch14.addConstraint(Sketcher.Constraint("Horizontal", 9))
sketch14.addConstraint(Sketcher.Constraint("Vertical", 10))
sketch14.addConstraint(Sketcher.Constraint("Horizontal", 11))
sketch14.addConstraint(Sketcher.Constraint("Vertical", 12))
sketch14.addConstraint(Sketcher.Constraint("Horizontal", 13))
sketch14.addConstraint(Sketcher.Constraint("Vertical", 14))
sketch14.addConstraint(Sketcher.Constraint("Horizontal", 15))
sketch14.addConstraint(Sketcher.Constraint("Horizontal", 5, 2, 8, 2))
sketch14.addConstraint(Sketcher.Constraint("Horizontal", 7, 2, 10, 2))
sketch14.addConstraint(Sketcher.Constraint("Horizontal", 1, 2, 12, 2))
sketch14.addConstraint(Sketcher.Constraint("Horizontal", 3, 2, 14, 2))
sketch14.addConstraint(Sketcher.Constraint("Equal", 3, 5))
sketch14.addConstraint(Sketcher.Constraint("Equal", 7, 9))
sketch14.addConstraint(Sketcher.Constraint("Equal", 11, 13))
sketch14.addConstraint(Sketcher.Constraint("Equal", 15, 0))
sketch14.addConstraint(Sketcher.Constraint("Equal", 2, 4))
sketch14.addConstraint(Sketcher.Constraint("DistanceX", 1, 1, 1, 2, 0.5))
sketch14.addConstraint(Sketcher.Constraint("DistanceX", 4, 2, 0, 2, 1.0))
sketch14.addConstraint(Sketcher.Constraint("DistanceY", 4, 2, 3, 2, 3.0))
sketch14.addConstraint(Sketcher.Constraint("DistanceX", 4, 2, 8, 2, 2.0))
sketch14.addConstraint(Sketcher.Constraint("DistanceX", 0, 2, 12, 2, 2.0))
sketch14.addConstraint(Sketcher.Constraint("DistanceX", 0, 2, -1, 1, 0.75))
sketch14.addConstraint(Sketcher.Constraint("DistanceY", -1, 1, 0, 2, 4.25))
sketch14.setExpression("Constraints[41]", "Params.sketch14_width")
pad3 = body.newObject("PartDesign::Pad", "Pad002")
pad3.Profile = sketch14
pad3.setExpression("Length", "Params.pad3_length")
doc.recompute()

chamfer = body.newObject("PartDesign::Chamfer", "Chamfer")
chamfer.Base = (pad3, edges_at(pad3, [
    (-0.25, -10.25, 4.5),
    (-0.5, -10.25, 4.75),
    (-0.75, -10.25, 4.5),
    (-0.5, -10.25, 4.25),
    (-1.25, -10.25, 2),
    (-1.5, -10.25, 2.25),
    (-1.75, -10.25, 2),
    (-1.5, -10.25, 1.75),
    (0.75, -10.25, 2),
    (0.5, -10.25, 2.25),
    (0.25, -10.25, 2),
    (0.5, -10.25, 1.75),
    (1.75, -10.25, 4.5),
    (1.5, -10.25, 4.75),
    (1.25, -10.25, 4.5),
    (1.5, -10.25, 4.25),
]))
chamfer.setExpression("Size", "Params.chamfer_size")

# Sketch on XZ plane
sketch15 = body.newObject("Sketcher::SketchObject", "Sketch014")
sketch15.AttachmentSupport = (doc.getObject("XZ_Plane"), [""])
sketch15.MapMode = "FlatFace"
sketch15.AttachmentOffset = App.Placement(V(0, 0, 6.55), App.Rotation())
add_polygon(sketch15, [(-5, 7.3), (-5, 6.7), (5, 6.7), (5, 7.3)])  # lines 0-3
sketch15.addConstraint(Sketcher.Constraint("Vertical", 0))
sketch15.addConstraint(Sketcher.Constraint("Horizontal", 1))
sketch15.addConstraint(Sketcher.Constraint("Vertical", 2))
sketch15.addConstraint(Sketcher.Constraint("Horizontal", 3))
sketch15.addConstraint(Sketcher.Constraint("DistanceX", 1, 1, 1, 2, 9.9))
sketch15.addConstraint(Sketcher.Constraint("DistanceY", 0, 2, 0, 1, 0.6))
sketch15.addConstraint(Sketcher.Constraint("DistanceY", -1, 1, 0, 2, 6.7))
sketch15.addConstraint(Sketcher.Constraint("DistanceX", 0, 2, -1, 1, 4.95))
sketch15.setExpression("Constraints[8]", "Params.sketch15_width")
sketch15.setExpression("Constraints[9]", "Params.sketch15_height")
pad4 = body.newObject("PartDesign::Pad", "Pad003")
pad4.Profile = sketch15
pad4.setExpression("Length", "Params.pad4_length")

# Sketch on XY plane
sketch16 = body.newObject("Sketcher::SketchObject", "Sketch015")
sketch16.AttachmentSupport = (doc.getObject("XY_Plane"), [""])
sketch16.MapMode = "FlatFace"
add_polygon(sketch16, [(-6.1, 7.3), (6.1, 7.3), (6.1, -7.3), (5.1, -7.3), (5.1, -4.3), (-5.1, -4.3), (-5.1, -7.3), (-6.1, -7.3)])  # lines 0-7
add_polygon(sketch16, [(-1.3, -3.5), (-1.3, 2.8), (-1.8, 2.8), (-1.8, -3.5)])  # lines 8-11
add_polygon(sketch16, [(-0.3, -3.5), (-0.3, 2.8), (-0.8, 2.8), (-0.8, -3.5)])  # lines 12-15
add_polygon(sketch16, [(0.8, -3.5), (0.8, 2.8), (0.3, 2.8), (0.3, -3.5)])  # lines 16-19
add_polygon(sketch16, [(1.8, -3.5), (1.8, 2.8), (1.3, 2.8), (1.3, -3.5)])  # lines 20-23
add_polygon(sketch16, [(5.1, 4.5), (5.1, 6.3), (-5.1, 6.3), (-5.1, 4.5)])  # lines 24-27
sketch16.addConstraint(Sketcher.Constraint("Horizontal", 0))
sketch16.addConstraint(Sketcher.Constraint("Vertical", 1))
sketch16.addConstraint(Sketcher.Constraint("Horizontal", 2))
sketch16.addConstraint(Sketcher.Constraint("Vertical", 3))
sketch16.addConstraint(Sketcher.Constraint("Horizontal", 4))
sketch16.addConstraint(Sketcher.Constraint("Vertical", 5))
sketch16.addConstraint(Sketcher.Constraint("Horizontal", 6))
sketch16.addConstraint(Sketcher.Constraint("Vertical", 7))
sketch16.addConstraint(Sketcher.Constraint("Vertical", 8))
sketch16.addConstraint(Sketcher.Constraint("Horizontal", 9))
sketch16.addConstraint(Sketcher.Constraint("Vertical", 10))
sketch16.addConstraint(Sketcher.Constraint("Horizontal", 11))
sketch16.addConstraint(Sketcher.Constraint("Vertical", 12))
sketch16.addConstraint(Sketcher.Constraint("Horizontal", 13))
sketch16.addConstraint(Sketcher.Constraint("Vertical", 14))
sketch16.addConstraint(Sketcher.Constraint("Horizontal", 15))
sketch16.addConstraint(Sketcher.Constraint("Vertical", 16))
sketch16.addConstraint(Sketcher.Constraint("Horizontal", 17))
sketch16.addConstraint(Sketcher.Constraint("Vertical", 18))
sketch16.addConstraint(Sketcher.Constraint("Horizontal", 19))
sketch16.addConstraint(Sketcher.Constraint("Vertical", 20))
sketch16.addConstraint(Sketcher.Constraint("Horizontal", 21))
sketch16.addConstraint(Sketcher.Constraint("Vertical", 22))
sketch16.addConstraint(Sketcher.Constraint("Horizontal", 23))
sketch16.addConstraint(Sketcher.Constraint("Vertical", 24))
sketch16.addConstraint(Sketcher.Constraint("Horizontal", 25))
sketch16.addConstraint(Sketcher.Constraint("Vertical", 26))
sketch16.addConstraint(Sketcher.Constraint("Horizontal", 27))
sketch16.addConstraint(Sketcher.Constraint("Symmetric", 0, 2, 6, 2, -1, 1))
sketch16.addConstraint(Sketcher.Constraint("Symmetric", 2, 2, 5, 2, -2))
sketch16.addConstraint(Sketcher.Constraint("Symmetric", 13, 2, 16, 2, -2))
sketch16.addConstraint(Sketcher.Constraint("Symmetric", 15, 2, 18, 2, -2))
sketch16.addConstraint(Sketcher.Constraint("Symmetric", 9, 2, 20, 2, -2))
sketch16.addConstraint(Sketcher.Constraint("Symmetric", 11, 2, 22, 2, -2))
sketch16.addConstraint(Sketcher.Constraint("Horizontal", 9, 2, 12, 2))
sketch16.addConstraint(Sketcher.Constraint("Horizontal", 11, 2, 14, 2))
sketch16.addConstraint(Sketcher.Constraint("Vertical", 3, 2, 24, 2))
sketch16.addConstraint(Sketcher.Constraint("Vertical", 5, 2, 25, 2))
sketch16.addConstraint(Sketcher.Constraint("Equal", 11, 13))
sketch16.addConstraint(Sketcher.Constraint("DistanceX", 2, 2, 2, 1, 1.0))
sketch16.addConstraint(Sketcher.Constraint("DistanceY", 3, 1, 3, 2, 3.0))
sketch16.addConstraint(Sketcher.Constraint("DistanceY", 1, 2, 1, 1, 14.6))
sketch16.addConstraint(Sketcher.Constraint("DistanceY", 8, 1, 8, 2, 6.3))
sketch16.addConstraint(Sketcher.Constraint("DistanceY", 24, 2, 0, 2, 1.0))
sketch16.addConstraint(Sketcher.Constraint("DistanceX", 0, 1, 0, 2, 12.25))
sketch16.addConstraint(Sketcher.Constraint("DistanceY", 24, 1, 24, 2, 1.85))
sketch16.addConstraint(Sketcher.Constraint("DistanceY", 9, 2, 26, 2, 1.7))
sketch16.addConstraint(Sketcher.Constraint("DistanceX", 9, 2, 9, 1, 0.518))
sketch16.addConstraint(Sketcher.Constraint("DistanceX", 12, 2, -1, 1, 0.26))
sketch16.addConstraint(Sketcher.Constraint("DistanceX", 8, 2, 20, 2, 3.11))
sketch16.setExpression("Constraints[67]", "Params.sketch16_width")
sketch16.setExpression("Constraints[68]", "Params.sketch16_height")
sketch16.setExpression("Constraints[69]", "Params.sketch16_height2")
sketch16.setExpression("Constraints[70]", "Params.sketch16_height3")
sketch16.setExpression("Constraints[72]", "Params.sketch16_width2")
pad5 = body.newObject("PartDesign::Pad", "Pad004")
pad5.Profile = sketch16
pad5.setExpression("Length", "Params.pad5_length")
pad5.Reversed = True

# Sketch on YZ plane
sketch17 = body.newObject("Sketcher::SketchObject", "Sketch016")
sketch17.AttachmentSupport = (doc.getObject("YZ_Plane"), [""])
sketch17.MapMode = "FlatFace"
sketch17.AttachmentOffset = App.Placement(V(0, 0, 6.125), App.Rotation())
add_polygon(sketch17, [(6.1, 10.9), (-4.2, 10.9), (-4.2, 9.7), (6.1, 9.7)])  # lines 0-3
sketch17.addConstraint(Sketcher.Constraint("Horizontal", 0))
sketch17.addConstraint(Sketcher.Constraint("Vertical", 1))
sketch17.addConstraint(Sketcher.Constraint("Horizontal", 2))
sketch17.addConstraint(Sketcher.Constraint("Vertical", 3))
sketch17.addConstraint(Sketcher.Constraint("DistanceX", 0, 2, 0, 1, 10.25))
sketch17.addConstraint(Sketcher.Constraint("DistanceY", 1, 2, 1, 1, 1.15))
sketch17.addConstraint(Sketcher.Constraint("DistanceX", -1, 1, 2, 2, 6.1))
sketch17.addConstraint(Sketcher.Constraint("DistanceY", -1, 1, 0, 2, 10.88))
sketch17.setExpression("Constraints[8]", "Params.sketch17_width")
sketch17.setExpression("Constraints[9]", "Params.sketch17_height")
pad6 = body.newObject("PartDesign::Pad", "Pad005")
pad6.Profile = sketch17
pad6.setExpression("Length", "Params.pad6_length")
doc.recompute()

mirrored = body.newObject("PartDesign::Mirrored", "Mirrored")
mirrored.Originals = [pad6]
mirrored.MirrorPlane = (doc.getObject("YZ_Plane"), [""])
body.Tip = mirrored

doc.recompute()
